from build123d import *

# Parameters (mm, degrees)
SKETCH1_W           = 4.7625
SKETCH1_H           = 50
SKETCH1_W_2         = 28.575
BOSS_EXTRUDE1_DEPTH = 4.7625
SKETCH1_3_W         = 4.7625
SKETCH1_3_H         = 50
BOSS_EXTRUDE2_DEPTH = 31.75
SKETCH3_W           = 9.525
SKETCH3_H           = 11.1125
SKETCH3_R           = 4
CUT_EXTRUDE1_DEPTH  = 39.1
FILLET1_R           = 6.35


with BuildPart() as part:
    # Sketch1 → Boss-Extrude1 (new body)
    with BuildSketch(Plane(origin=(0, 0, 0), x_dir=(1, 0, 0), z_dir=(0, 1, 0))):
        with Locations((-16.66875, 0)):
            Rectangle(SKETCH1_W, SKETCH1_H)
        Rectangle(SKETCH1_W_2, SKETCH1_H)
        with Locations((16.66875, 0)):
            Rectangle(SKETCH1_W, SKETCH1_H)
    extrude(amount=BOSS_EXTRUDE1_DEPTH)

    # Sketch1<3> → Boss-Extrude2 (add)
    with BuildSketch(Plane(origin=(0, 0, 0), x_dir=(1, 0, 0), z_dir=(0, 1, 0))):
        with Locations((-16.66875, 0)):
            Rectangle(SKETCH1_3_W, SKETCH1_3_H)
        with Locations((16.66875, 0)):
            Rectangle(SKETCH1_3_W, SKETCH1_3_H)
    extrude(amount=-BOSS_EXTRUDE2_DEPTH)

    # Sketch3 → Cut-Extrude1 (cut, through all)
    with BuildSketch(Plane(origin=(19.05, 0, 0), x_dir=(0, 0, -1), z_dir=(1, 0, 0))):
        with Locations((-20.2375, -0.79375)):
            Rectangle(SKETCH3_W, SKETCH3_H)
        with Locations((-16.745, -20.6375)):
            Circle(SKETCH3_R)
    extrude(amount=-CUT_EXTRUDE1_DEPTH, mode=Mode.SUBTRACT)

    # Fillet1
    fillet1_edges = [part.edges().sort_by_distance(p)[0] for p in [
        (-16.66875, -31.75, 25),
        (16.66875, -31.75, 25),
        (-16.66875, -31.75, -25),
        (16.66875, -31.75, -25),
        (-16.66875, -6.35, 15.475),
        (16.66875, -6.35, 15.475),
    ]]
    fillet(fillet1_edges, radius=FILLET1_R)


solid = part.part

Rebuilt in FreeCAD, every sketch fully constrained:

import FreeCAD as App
import Part
import Sketcher
from FreeCAD import Vector
Q = App.Units.Quantity


def edges_at(feature, points):
    """Names of the edges that pass closest to the given points."""
    edges = feature.Shape.Edges
    near = lambda p: min(range(len(edges)), key=lambda i: edges[i].distToShape(Part.Vertex(*p))[0])
    return sorted({f"Edge{near(p) + 1}" for p in points})


def add_polygon(sketch, points):
    """Adds a closed chain of lines whose ends are joined by coincident constraints."""
    first, n = sketch.GeometryCount, len(points)
    for a, b in zip(points, points[1:] + points[:1]):
        sketch.addGeometry(Part.LineSegment(App.Vector(*a, 0), App.Vector(*b, 0)), False)
    for i in range(n):
        sketch.addConstraint(Sketcher.Constraint("Coincident", first + i, 2, first + (i + 1) % n, 1))

doc = App.newDocument("Part")
body = doc.addObject("PartDesign::Body", "Body")

sketch1 = body.newObject("Sketcher::SketchObject", "Sketch")
sketch1.AttachmentSupport = (doc.getObject("XZ_Plane"), [""])
sketch1.MapMode = "FlatFace"
add_polygon(sketch1, [(-19, -25), (-19, 25), (19, 25), (19, -25)])
sketch1.addConstraint([
    Sketcher.Constraint("Vertical", 0),
    Sketcher.Constraint("Horizontal", 1),
    Sketcher.Constraint("Vertical", 2),
    Sketcher.Constraint("Horizontal", 3),
    Sketcher.Constraint("Symmetric", 0, 2, 2, 2, -1, 1),
    Sketcher.Constraint("DistanceX", 1, 1, 1, 2, Q("1.5 in")),
    Sketcher.Constraint("DistanceY", 0, 1, 0, 2, Q("50 mm")),
])
pad1 = body.newObject("PartDesign::Pad", "Pad")
pad1.Profile = sketch1
pad1.Length = Q("0.1875 in")
pad1.Reversed = True

sketch2 = body.newObject("Sketcher::SketchObject", "Sketch001")
sketch2.AttachmentSupport = (doc.getObject("XZ_Plane"), [""])
sketch2.MapMode = "FlatFace"
add_polygon(sketch2, [(-19.1, -25), (-19.1, 25), (-14.3, 25), (-14.3, -25)])
add_polygon(sketch2, [(14.3, -25), (14.3, 25), (19.1, 25), (19.1, -25)])
sketch2.addConstraint([
    Sketcher.Constraint("Vertical", 0),
    Sketcher.Constraint("Horizontal", 1),
    Sketcher.Constraint("Vertical", 2),
    Sketcher.Constraint("Horizontal", 3),
    Sketcher.Constraint("Vertical", 4),
    Sketcher.Constraint("Horizontal", 5),
    Sketcher.Constraint("Vertical", 6),
    Sketcher.Constraint("Horizontal", 7),
    Sketcher.Constraint("Symmetric", 2, 2, 4, 2, -1, 1),
    Sketcher.Constraint("Symmetric", 0, 2, 6, 2, -1, 1),
    Sketcher.Constraint("Horizontal", 1, 2, 4, 2),
    Sketcher.Constraint("DistanceX", 0, 2, 5, 2, Q("1.5 in")),
    Sketcher.Constraint("DistanceX", 1, 1, 1, 2, Q("0.1875 in")),
    Sketcher.Constraint("DistanceY", 0, 1, 0, 2, Q("50 mm")),
])
pad2 = body.newObject("PartDesign::Pad", "Pad001")
pad2.Profile = sketch2
pad2.Length = Q("1.25 in")

sketch3 = body.newObject("Sketcher::SketchObject", "Sketch002")
sketch3.AttachmentSupport = (doc.getObject("YZ_Plane"), [""])
sketch3.MapMode = "FlatFace"
sketch3.AttachmentOffset = App.Placement(Vector(0, 0, 0.75 * 25.4), App.Rotation())
add_polygon(sketch3, [(4.8, 25), (-6.3, 25), (-6.3, 15.5), (4.8, 15.5)])
sketch3.addGeometry(Part.Circle(Vector(-20.6, 16.7, 0), Vector(0, 0, 1), 4), False)
sketch3.addConstraint([
    Sketcher.Constraint("Horizontal", 0),
    Sketcher.Constraint("Vertical", 1),
    Sketcher.Constraint("Horizontal", 2),
    Sketcher.Constraint("Vertical", 3),
    Sketcher.Constraint("DistanceX", 4, 3, 2, 2, Q("1 in")),
    Sketcher.Constraint("Diameter", 4, Q("8 mm")),
    Sketcher.Constraint("DistanceX", 0, 2, 0, 1, Q("0.4375 in")),
    Sketcher.Constraint("DistanceY", 1, 2, 1, 1, Q("0.375 in")),
    Sketcher.Constraint("DistanceX", 0, 2, -1, 1, Q("0.25 in")),
    Sketcher.Constraint("DistanceY", 1, 2, 4, 3, Q("0.05 in")),
    Sketcher.Constraint("DistanceY", -1, 1, 4, 3, Q("16.745 mm")),
])
pocket1 = body.newObject("PartDesign::Pocket", "Pocket")
pocket1.Profile = sketch3
pocket1.Type = "ThroughAll"
doc.recompute()

fillet = body.newObject("PartDesign::Fillet", "Fillet")
fillet.Base = (pocket1, edges_at(pocket1, [
    (-16.669, -31.75, 25),
    (16.669, -31.75, 25),
    (-16.669, -31.75, -25),
    (16.669, -31.75, -25),
    (-16.669, -6.35, 15.475),
    (16.669, -6.35, 15.475),
]))
fillet.Radius = Q("0.25 in")

doc.recompute()
